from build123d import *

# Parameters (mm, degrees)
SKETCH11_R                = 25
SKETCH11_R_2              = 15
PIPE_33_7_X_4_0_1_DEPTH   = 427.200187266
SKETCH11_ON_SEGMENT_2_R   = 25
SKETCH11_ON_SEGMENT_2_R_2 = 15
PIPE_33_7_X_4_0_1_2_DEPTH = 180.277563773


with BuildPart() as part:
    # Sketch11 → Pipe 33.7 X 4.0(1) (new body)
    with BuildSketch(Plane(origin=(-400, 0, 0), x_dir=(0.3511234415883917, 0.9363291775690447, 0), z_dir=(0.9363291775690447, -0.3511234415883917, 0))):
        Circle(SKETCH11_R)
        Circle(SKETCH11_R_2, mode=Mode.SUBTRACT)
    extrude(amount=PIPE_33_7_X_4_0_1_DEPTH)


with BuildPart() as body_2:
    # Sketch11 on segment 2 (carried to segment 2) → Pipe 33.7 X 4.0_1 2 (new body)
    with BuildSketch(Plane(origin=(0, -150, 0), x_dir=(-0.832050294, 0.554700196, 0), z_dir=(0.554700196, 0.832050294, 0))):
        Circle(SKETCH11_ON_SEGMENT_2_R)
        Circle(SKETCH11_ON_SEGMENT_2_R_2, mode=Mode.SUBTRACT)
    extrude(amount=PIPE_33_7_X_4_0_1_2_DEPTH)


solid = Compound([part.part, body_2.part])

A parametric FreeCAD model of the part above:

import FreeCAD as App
import Part
import Sketcher
from FreeCAD import Vector
Q = App.Units.Quantity

doc = App.newDocument("Part")
body = doc.addObject("PartDesign::Body", "Body")

# Sketch on an angled plane
sketch1 = body.newObject("Sketcher::SketchObject", "Sketch")
sketch1.Placement = App.Placement(Vector(-400, 0, 0), App.Rotation(Vector(0.351123442, 0.936329178, 0), Vector(0, 0, 1.000000001), Vector(0.936329178, -0.351123442, 0), "ZXY"))
sketch1.addGeometry(Part.Circle(Vector(0, 0, 0), Vector(0, 0, 1), 25), False)
sketch1.addGeometry(Part.Circle(Vector(0, 0, 0), Vector(0, 0, 1), 15), False)
sketch1.addConstraint(Sketcher.Constraint("Coincident", 0, 3, -1, 1))
sketch1.addConstraint(Sketcher.Constraint("Coincident", 1, 3, -1, 1))
sketch1.addConstraint(Sketcher.Constraint("Diameter", 0, Q("50 mm")))
sketch1.addConstraint(Sketcher.Constraint("Diameter", 1, Q("30 mm")))
pad1 = body.newObject("PartDesign::Pad", "Pad")
pad1.Profile = sketch1
pad1.Length = 427.200187
body2 = doc.addObject("PartDesign::Body", "Body001")

# Sketch on an angled plane
sketch2 = body2.newObject("Sketcher::SketchObject", "Sketch001")
sketch2.Placement = App.Placement(Vector(0, -150, 0), App.Rotation(Vector(-0.832050294, 0.554700196, 0), Vector(0, 0, 0.999999999), Vector(0.554700196, 0.832050294, 0), "ZXY"))
sketch2.addGeometry(Part.Circle(Vector(0, 0, 0), Vector(0, 0, 1), 25), False)
sketch2.addGeometry(Part.Circle(Vector(0, 0, 0), Vector(0, 0, 1), 15), False)
sketch2.addConstraint(Sketcher.Constraint("Coincident", 0, 3, -1, 1))
sketch2.addConstraint(Sketcher.Constraint("Coincident", 1, 3, -1, 1))
sketch2.addConstraint(Sketcher.Constraint("Diameter", 0, Q("50 mm")))
sketch2.addConstraint(Sketcher.Constraint("Diameter", 1, Q("30 mm")))
pad2 = body2.newObject("PartDesign::Pad", "Pad001")
pad2.Profile = sketch2
pad2.Length = 180.277564

doc.recompute()
